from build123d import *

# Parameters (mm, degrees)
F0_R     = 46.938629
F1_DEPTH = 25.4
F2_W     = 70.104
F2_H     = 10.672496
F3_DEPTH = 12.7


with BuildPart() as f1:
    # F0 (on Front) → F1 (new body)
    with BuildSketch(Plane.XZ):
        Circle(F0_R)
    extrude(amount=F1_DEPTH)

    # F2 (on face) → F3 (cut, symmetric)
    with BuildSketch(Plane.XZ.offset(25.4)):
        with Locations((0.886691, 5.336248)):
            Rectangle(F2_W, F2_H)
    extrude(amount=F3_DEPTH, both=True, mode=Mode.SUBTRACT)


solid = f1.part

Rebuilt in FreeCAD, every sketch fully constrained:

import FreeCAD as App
import Part
import Sketcher

V = App.Vector
Q = App.Units.Quantity


def add_polygon(sketch, points):
    """Adds a closed chain of lines whose ends are joined by coincident constraints."""
    first, n = sketch.GeometryCount, len(points)
    for a, b in zip(points, points[1:] + points[:1]):
        sketch.addGeometry(Part.LineSegment(App.Vector(*a, 0), App.Vector(*b, 0)), False)
    for i in range(n):
        sketch.addConstraint(Sketcher.Constraint("Coincident", first + i, 2, first + (i + 1) % n, 1))

doc = App.newDocument("Part")
body = doc.addObject("PartDesign::Body", "Body")

sketch1 = doc.addObject("Sketcher::SketchObject", "Sketch")
body.addObject(sketch1)
sketch1.AttachmentSupport = (doc.XZ_Plane, [""])
sketch1.MapMode = "FlatFace"
sketch1.addGeometry(Part.Circle(V(0, 0, 0), V(0, 0, 1), 46.938629), False)
sketch1.addConstraint(Sketcher.Constraint("Coincident", 0, 3, -1, 1))
sketch1.addConstraint(Sketcher.Constraint("Diameter", 0, Q("93.877258 mm")))
pad1 = doc.addObject("PartDesign::Pad", "Pad")
body.addObject(pad1)
pad1.Profile = sketch1
pad1.Length = Q("1 in")

sketch2 = doc.addObject("Sketcher::SketchObject", "Sketch001")
body.addObject(sketch2)
sketch2.AttachmentSupport = (doc.XZ_Plane, [""])
sketch2.MapMode = "FlatFace"
sketch2.AttachmentOffset = App.Placement(V(0, 0, 1 * 25.4), App.Rotation())
add_polygon(sketch2, [(-34.165309, 10.672496), (-34.165309, 0), (35.938691, 0), (35.938691, 10.672496)])
sketch2.addConstraint(Sketcher.Constraint("Vertical", 0))
sketch2.addConstraint(Sketcher.Constraint("Horizontal", 1))
sketch2.addConstraint(Sketcher.Constraint("Vertical", 2))
sketch2.addConstraint(Sketcher.Constraint("Horizontal", 3))
sketch2.addConstraint(Sketcher.Constraint("PointOnObject", 0, 2, -1))
sketch2.addConstraint(Sketcher.Constraint("DistanceX", 1, 1, 1, 2, Q("2.76 in")))
sketch2.addConstraint(Sketcher.Constraint("DistanceY", 0, 2, 0, 1, Q("10.672496 mm")))
sketch2.addConstraint(Sketcher.Constraint("DistanceX", 0, 2, -1, 1, Q("34.165309 mm")))
pocket1 = doc.addObject("PartDesign::Pocket", "Pocket")
body.addObject(pocket1)
pocket1.Profile = sketch2
pocket1.Length = Q("1 in")
pocket1.Midplane = True

doc.recompute()
